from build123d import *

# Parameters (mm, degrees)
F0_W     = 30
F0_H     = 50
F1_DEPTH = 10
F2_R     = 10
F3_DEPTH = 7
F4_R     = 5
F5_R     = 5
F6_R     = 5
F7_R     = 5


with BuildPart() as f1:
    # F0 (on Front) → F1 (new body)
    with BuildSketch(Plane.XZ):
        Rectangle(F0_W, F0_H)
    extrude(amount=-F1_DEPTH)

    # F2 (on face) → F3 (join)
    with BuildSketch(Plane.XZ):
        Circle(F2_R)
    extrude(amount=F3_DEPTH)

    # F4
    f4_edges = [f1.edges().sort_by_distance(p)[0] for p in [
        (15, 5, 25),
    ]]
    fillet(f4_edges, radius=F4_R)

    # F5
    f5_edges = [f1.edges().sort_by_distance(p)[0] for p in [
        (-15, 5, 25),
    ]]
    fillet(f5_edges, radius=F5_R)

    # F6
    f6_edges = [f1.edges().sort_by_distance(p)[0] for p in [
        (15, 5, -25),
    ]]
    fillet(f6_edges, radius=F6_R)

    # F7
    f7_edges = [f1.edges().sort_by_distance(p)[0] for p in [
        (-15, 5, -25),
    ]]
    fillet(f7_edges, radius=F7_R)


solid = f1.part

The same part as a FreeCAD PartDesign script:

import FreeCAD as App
import Part
import Sketcher
from FreeCAD import Vector


def edges_at(feature, points):
    """Names of the edges that pass closest to the given points."""
    edges = feature.Shape.Edges
    near = lambda p: min(range(len(edges)), key=lambda i: edges[i].distToShape(Part.Vertex(*p))[0])
    return sorted({f"Edge{near(p) + 1}" for p in points})

doc = App.newDocument("Part")
body = doc.addObject("PartDesign::Body", "Body")

sketch1 = body.newObject("Sketcher::SketchObject", "Sketch")
sketch1.AttachmentSupport = (doc.getObject("XZ_Plane"), [""])
sketch1.MapMode = "FlatFace"
sketch1.addGeometry(Part.LineSegment(Vector(-15, 25, 0), Vector(-15, -25, 0)), False)
sketch1.addGeometry(Part.LineSegment(Vector(-15, -25, 0), Vector(15, -25, 0)), False)
sketch1.addGeometry(Part.LineSegment(Vector(15, -25, 0), Vector(15, 25, 0)), False)
sketch1.addGeometry(Part.LineSegment(Vector(15, 25, 0), Vector(-15, 25, 0)), False)
sketch1.addConstraint(Sketcher.Constraint("Coincident", 0, 2, 1, 1))
sketch1.addConstraint(Sketcher.Constraint("Coincident", 1, 2, 2, 1))
sketch1.addConstraint(Sketcher.Constraint("Coincident", 2, 2, 3, 1))
sketch1.addConstraint(Sketcher.Constraint("Coincident", 3, 2, 0, 1))
sketch1.addConstraint(Sketcher.Constraint("Vertical", 0))
sketch1.addConstraint(Sketcher.Constraint("Horizontal", 1))
sketch1.addConstraint(Sketcher.Constraint("Vertical", 2))
sketch1.addConstraint(Sketcher.Constraint("Horizontal", 3))
sketch1.addConstraint(Sketcher.Constraint("Symmetric", 0, 2, 2, 2, -1, 1))
sketch1.addConstraint(Sketcher.Constraint("DistanceX", 1, 1, 1, 2, 30.0))
sketch1.addConstraint(Sketcher.Constraint("DistanceY", 0, 2, 0, 1, 50.0))
pad1 = body.newObject("PartDesign::Pad", "Pad")
pad1.Profile = sketch1
pad1.Length = 10
pad1.Reversed = True

sketch2 = body.newObject("Sketcher::SketchObject", "Sketch001")
sketch2.AttachmentSupport = (doc.getObject("XZ_Plane"), [""])
sketch2.MapMode = "FlatFace"
sketch2.addGeometry(Part.Circle(Vector(0, 0, 0), Vector(0, 0, 1), 10), False)
sketch2.addConstraint(Sketcher.Constraint("Coincident", 0, 3, -1, 1))
sketch2.addConstraint(Sketcher.Constraint("Diameter", 0, 20.0))
pad2 = body.newObject("PartDesign::Pad", "Pad001")
pad2.Profile = sketch2
pad2.Length = 7
doc.recompute()

fillet = body.newObject("PartDesign::Fillet", "Fillet")
fillet.Base = (pad2, edges_at(pad2, [(15, 5, 25)]))
fillet.Radius = 5
doc.recompute()

fillet2 = body.newObject("PartDesign::Fillet", "Fillet001")
fillet2.Base = (fillet, edges_at(fillet, [(-15, 5, 25)]))
fillet2.Radius = 5
doc.recompute()

fillet3 = body.newObject("PartDesign::Fillet", "Fillet002")
fillet3.Base = (fillet2, edges_at(fillet2, [(15, 5, -25)]))
fillet3.Radius = 5
doc.recompute()

fillet4 = body.newObject("PartDesign::Fillet", "Fillet003")
fillet4.Base = (fillet3, edges_at(fillet3, [(-15, 5, -25)]))
fillet4.Radius = 5

doc.recompute()
